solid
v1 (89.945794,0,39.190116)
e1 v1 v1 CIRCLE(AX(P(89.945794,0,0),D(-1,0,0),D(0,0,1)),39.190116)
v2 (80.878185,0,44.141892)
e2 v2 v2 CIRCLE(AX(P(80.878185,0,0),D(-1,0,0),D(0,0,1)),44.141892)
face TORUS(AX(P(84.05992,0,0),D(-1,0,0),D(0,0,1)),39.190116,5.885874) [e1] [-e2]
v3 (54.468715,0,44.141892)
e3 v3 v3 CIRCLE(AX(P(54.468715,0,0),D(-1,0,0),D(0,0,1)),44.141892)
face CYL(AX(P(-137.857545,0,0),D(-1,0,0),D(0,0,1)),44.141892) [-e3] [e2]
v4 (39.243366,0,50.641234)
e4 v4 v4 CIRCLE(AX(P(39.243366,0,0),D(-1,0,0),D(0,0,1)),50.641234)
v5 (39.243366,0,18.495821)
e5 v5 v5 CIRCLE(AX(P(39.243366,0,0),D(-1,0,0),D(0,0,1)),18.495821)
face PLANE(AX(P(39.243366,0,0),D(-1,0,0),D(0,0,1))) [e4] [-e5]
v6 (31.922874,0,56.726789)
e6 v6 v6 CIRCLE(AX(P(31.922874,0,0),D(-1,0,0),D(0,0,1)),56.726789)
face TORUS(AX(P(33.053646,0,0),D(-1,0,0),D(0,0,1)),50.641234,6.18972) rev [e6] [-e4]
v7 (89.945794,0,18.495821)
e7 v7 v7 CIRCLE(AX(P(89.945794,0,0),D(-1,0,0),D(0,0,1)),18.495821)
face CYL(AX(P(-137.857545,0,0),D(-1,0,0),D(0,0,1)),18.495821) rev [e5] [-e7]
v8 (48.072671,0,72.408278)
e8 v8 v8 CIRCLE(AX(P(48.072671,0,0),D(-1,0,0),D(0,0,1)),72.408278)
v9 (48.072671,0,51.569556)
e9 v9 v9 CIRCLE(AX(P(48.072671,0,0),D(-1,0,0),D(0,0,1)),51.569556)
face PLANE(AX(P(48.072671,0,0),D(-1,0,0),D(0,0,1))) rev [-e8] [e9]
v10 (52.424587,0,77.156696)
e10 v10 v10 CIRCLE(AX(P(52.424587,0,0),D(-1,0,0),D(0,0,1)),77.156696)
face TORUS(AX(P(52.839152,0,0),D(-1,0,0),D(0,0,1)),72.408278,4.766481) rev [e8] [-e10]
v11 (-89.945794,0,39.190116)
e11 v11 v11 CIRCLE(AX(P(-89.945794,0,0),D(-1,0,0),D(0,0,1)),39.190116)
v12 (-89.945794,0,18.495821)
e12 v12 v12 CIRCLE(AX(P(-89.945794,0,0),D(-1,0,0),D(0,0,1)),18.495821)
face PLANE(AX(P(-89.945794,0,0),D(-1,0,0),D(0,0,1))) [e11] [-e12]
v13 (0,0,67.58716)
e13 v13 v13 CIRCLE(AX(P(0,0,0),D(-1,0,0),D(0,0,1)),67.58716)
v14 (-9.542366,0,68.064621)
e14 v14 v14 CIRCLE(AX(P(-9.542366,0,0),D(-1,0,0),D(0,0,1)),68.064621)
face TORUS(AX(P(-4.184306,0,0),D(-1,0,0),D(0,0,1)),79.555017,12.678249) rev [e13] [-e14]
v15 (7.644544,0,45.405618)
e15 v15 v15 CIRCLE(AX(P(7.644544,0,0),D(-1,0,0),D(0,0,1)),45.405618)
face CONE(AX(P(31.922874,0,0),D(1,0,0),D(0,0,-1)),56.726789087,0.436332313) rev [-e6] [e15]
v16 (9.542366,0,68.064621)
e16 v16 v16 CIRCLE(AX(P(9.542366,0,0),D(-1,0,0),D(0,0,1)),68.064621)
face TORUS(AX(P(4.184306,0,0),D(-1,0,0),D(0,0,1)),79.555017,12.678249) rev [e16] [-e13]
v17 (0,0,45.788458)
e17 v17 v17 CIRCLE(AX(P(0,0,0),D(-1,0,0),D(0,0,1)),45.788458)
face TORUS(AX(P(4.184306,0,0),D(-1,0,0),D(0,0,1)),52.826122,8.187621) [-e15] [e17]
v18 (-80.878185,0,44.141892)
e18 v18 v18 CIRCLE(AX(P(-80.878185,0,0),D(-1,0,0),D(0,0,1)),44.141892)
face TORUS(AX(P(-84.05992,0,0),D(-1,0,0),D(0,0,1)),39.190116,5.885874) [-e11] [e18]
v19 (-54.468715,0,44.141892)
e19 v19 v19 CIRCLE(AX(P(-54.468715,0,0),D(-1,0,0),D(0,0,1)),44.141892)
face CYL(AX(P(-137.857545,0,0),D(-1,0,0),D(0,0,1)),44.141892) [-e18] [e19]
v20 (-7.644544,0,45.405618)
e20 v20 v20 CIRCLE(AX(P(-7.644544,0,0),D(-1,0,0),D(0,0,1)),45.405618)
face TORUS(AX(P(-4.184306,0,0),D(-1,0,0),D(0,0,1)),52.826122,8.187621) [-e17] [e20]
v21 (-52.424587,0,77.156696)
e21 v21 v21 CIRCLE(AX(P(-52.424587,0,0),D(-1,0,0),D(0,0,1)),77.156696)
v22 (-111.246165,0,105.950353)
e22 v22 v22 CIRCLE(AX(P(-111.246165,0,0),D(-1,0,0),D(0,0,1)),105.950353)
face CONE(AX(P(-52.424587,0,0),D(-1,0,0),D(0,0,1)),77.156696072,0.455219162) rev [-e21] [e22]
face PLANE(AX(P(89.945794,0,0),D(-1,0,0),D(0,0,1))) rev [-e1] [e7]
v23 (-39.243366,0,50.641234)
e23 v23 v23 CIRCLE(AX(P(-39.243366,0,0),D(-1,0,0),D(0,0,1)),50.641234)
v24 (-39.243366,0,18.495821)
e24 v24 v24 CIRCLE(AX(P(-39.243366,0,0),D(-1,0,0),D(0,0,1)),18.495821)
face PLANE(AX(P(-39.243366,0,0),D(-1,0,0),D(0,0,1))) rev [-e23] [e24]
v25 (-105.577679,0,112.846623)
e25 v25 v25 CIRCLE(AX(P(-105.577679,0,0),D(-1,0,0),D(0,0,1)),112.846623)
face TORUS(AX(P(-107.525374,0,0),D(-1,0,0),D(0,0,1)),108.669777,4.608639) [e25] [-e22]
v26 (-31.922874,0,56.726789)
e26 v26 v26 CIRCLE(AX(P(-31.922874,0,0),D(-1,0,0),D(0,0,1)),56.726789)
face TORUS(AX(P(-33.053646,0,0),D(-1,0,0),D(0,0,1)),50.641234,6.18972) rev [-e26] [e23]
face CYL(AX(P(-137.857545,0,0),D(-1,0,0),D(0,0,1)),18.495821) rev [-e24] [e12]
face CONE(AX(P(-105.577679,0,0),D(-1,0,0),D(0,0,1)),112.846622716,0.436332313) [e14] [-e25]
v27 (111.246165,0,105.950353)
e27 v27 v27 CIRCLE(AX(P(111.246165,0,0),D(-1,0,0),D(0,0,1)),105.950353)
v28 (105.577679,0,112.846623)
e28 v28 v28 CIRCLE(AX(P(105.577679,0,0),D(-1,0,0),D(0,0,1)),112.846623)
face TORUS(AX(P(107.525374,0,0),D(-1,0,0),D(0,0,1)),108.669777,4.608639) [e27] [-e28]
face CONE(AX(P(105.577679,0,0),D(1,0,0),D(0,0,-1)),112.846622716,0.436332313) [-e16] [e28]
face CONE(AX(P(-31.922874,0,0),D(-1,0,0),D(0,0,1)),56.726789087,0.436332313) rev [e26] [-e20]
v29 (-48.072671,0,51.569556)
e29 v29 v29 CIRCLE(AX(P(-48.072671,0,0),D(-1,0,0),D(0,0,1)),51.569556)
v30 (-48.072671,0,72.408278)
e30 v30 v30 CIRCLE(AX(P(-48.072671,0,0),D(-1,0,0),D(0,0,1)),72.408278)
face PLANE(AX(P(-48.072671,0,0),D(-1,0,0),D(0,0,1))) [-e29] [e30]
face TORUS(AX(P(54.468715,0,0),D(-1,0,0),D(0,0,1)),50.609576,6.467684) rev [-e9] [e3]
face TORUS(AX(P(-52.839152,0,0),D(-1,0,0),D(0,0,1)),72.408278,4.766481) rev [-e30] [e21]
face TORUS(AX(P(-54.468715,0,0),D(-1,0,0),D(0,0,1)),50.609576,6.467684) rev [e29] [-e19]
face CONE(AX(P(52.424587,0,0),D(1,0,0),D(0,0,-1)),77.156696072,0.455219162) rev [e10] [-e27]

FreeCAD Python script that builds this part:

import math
import FreeCAD as App
import Part
import Sketcher

V = App.Vector
Q = App.Units.Quantity

doc = App.newDocument("Part")
body = doc.addObject("PartDesign::Body", "Body")

# Sketch on XZ plane
sketch1 = body.newObject("Sketcher::SketchObject", "Sketch")
sketch1.AttachmentSupport = (doc.getObject("XZ_Plane"), [""])
sketch1.MapMode = "FlatFace"
sketch1.addGeometry(Part.LineSegment(V(-89.945794, -18.495821, 0), V(-39.243366, -18.495821, 0)), False)
sketch1.addGeometry(Part.LineSegment(V(-39.243366, -18.495821, 0), V(-39.243366, -50.641234, 0)), False)
sketch1.addGeometry(Part.ArcOfCircle(Part.Circle(V(-33.053646, -50.641234, 0), V(0, 0, 1), 6.18972), math.radians(180), math.radians(280.526226)), False)
sketch1.addGeometry(Part.LineSegment(V(-31.922874, -56.726789, 0), V(-7.644544, -45.405618, 0)), False)
sketch1.addGeometry(Part.ArcOfCircle(Part.Circle(V(-4.184306, -52.826122, 0), V(0, 0, 1), 8.187621), math.radians(59.266022), math.radians(115)), False)
sketch1.addGeometry(Part.ArcOfCircle(Part.Circle(V(4.184306, -52.826122, 0), V(0, 0, 1), 8.187621), math.radians(65), math.radians(120.733978)), False)
sketch1.addGeometry(Part.LineSegment(V(7.644544, -45.405618, 0), V(31.922874, -56.726789, 0)), False)
sketch1.addGeometry(Part.ArcOfCircle(Part.Circle(V(33.053646, -50.641234, 0), V(0, 0, 1), 6.18972), math.radians(-100.526226), math.radians(0)), False)
sketch1.addGeometry(Part.LineSegment(V(39.243366, -50.641234, 0), V(39.243366, -18.495821, 0)), False)
sketch1.addGeometry(Part.LineSegment(V(39.243366, -18.495821, 0), V(89.945794, -18.495821, 0)), False)
sketch1.addGeometry(Part.LineSegment(V(89.945794, -18.495821, 0), V(89.945794, -39.190116, 0)), False)
sketch1.addGeometry(Part.ArcOfCircle(Part.Circle(V(84.05992, -39.190116, 0), V(0, 0, 1), 5.885874), math.radians(-122.722538), math.radians(0)), False)
sketch1.addGeometry(Part.LineSegment(V(80.878185, -44.141892, 0), V(54.468715, -44.141892, 0)), False)
sketch1.addGeometry(Part.ArcOfCircle(Part.Circle(V(54.468715, -50.609576, 0), V(0, 0, 1), 6.467684), math.radians(90), math.radians(188.535787)), False)
sketch1.addGeometry(Part.LineSegment(V(48.072671, -51.569556, 0), V(48.072671, -72.408278, 0)), False)
sketch1.addGeometry(Part.ArcOfCircle(Part.Circle(V(52.839152, -72.408278, 0), V(0, 0, 1), 4.766481), math.radians(-180), math.radians(-94.989617)), False)
sketch1.addGeometry(Part.LineSegment(V(52.424587, -77.156696, 0), V(111.246165, -105.950353, 0)), False)
sketch1.addGeometry(Part.ArcOfCircle(Part.Circle(V(107.525374, -108.669777, 0), V(0, 0, 1), 4.608639), math.radians(-115), math.radians(36.16205)), False)
sketch1.addGeometry(Part.LineSegment(V(105.577679, -112.846623, 0), V(9.542366, -68.064621, 0)), False)
sketch1.addGeometry(Part.ArcOfCircle(Part.Circle(V(4.184306, -79.555017, 0), V(0, 0, 1), 12.678249), math.radians(65), math.radians(109.271092)), False)
sketch1.addGeometry(Part.ArcOfCircle(Part.Circle(V(-4.184306, -79.555017, 0), V(0, 0, 1), 12.678249), math.radians(70.728908), math.radians(115)), False)
sketch1.addGeometry(Part.LineSegment(V(-9.542366, -68.064621, 0), V(-105.577679, -112.846623, 0)), False)
sketch1.addGeometry(Part.ArcOfCircle(Part.Circle(V(-107.525374, -108.669777, 0), V(0, 0, 1), 4.608639), math.radians(143.83795), math.radians(295)), False)
sketch1.addGeometry(Part.LineSegment(V(-111.246165, -105.950353, 0), V(-52.424587, -77.156696, 0)), False)
sketch1.addGeometry(Part.ArcOfCircle(Part.Circle(V(-52.839152, -72.408278, 0), V(0, 0, 1), 4.766481), math.radians(-85.010383), math.radians(0)), False)
sketch1.addGeometry(Part.LineSegment(V(-48.072671, -72.408278, 0), V(-48.072671, -51.569556, 0)), False)
sketch1.addGeometry(Part.ArcOfCircle(Part.Circle(V(-54.468715, -50.609576, 0), V(0, 0, 1), 6.467684), math.radians(-8.535787), math.radians(90)), False)
sketch1.addGeometry(Part.LineSegment(V(-54.468715, -44.141892, 0), V(-80.878185, -44.141892, 0)), False)
sketch1.addGeometry(Part.ArcOfCircle(Part.Circle(V(-84.05992, -39.190116, 0), V(0, 0, 1), 5.885874), math.radians(-180), math.radians(-57.277462)), False)
sketch1.addGeometry(Part.LineSegment(V(-89.945794, -39.190116, 0), V(-89.945794, -18.495821, 0)), False)
sketch1.addConstraint(Sketcher.Constraint("Coincident", 0, 2, 1, 1))
sketch1.addConstraint(Sketcher.Constraint("Tangent", 1, 2, 2, 1))
sketch1.addConstraint(Sketcher.Constraint("Coincident", 2, 2, 3, 1))
sketch1.addConstraint(Sketcher.Constraint("Tangent", 3, 2, 4, 2))
sketch1.addConstraint(Sketcher.Constraint("Coincident", 4, 1, 5, 2))
sketch1.addConstraint(Sketcher.Constraint("Tangent", 5, 1, 6, 1))
sketch1.addConstraint(Sketcher.Constraint("Coincident", 6, 2, 7, 1))
sketch1.addConstraint(Sketcher.Constraint("Tangent", 7, 2, 8, 1))
sketch1.addConstraint(Sketcher.Constraint("Coincident", 8, 2, 9, 1))
sketch1.addConstraint(Sketcher.Constraint("Coincident", 9, 2, 10, 1))
sketch1.addConstraint(Sketcher.Constraint("Tangent", 10, 2, 11, 2))
sketch1.addConstraint(Sketcher.Constraint("Coincident", 11, 1, 12, 1))
sketch1.addConstraint(Sketcher.Constraint("Tangent", 12, 2, 13, 1))
sketch1.addConstraint(Sketcher.Constraint("Coincident", 13, 2, 14, 1))
sketch1.addConstraint(Sketcher.Constraint("Tangent", 14, 2, 15, 1))
sketch1.addConstraint(Sketcher.Constraint("Coincident", 15, 2, 16, 1))
sketch1.addConstraint(Sketcher.Constraint("Coincident", 16, 2, 17, 2))
sketch1.addConstraint(Sketcher.Constraint("Tangent", 17, 1, 18, 1))
sketch1.addConstraint(Sketcher.Constraint("Tangent", 18, 2, 19, 1))
sketch1.addConstraint(Sketcher.Constraint("Coincident", 19, 2, 20, 1))
sketch1.addConstraint(Sketcher.Constraint("Tangent", 20, 2, 21, 1))
sketch1.addConstraint(Sketcher.Constraint("Tangent", 21, 2, 22, 2))
sketch1.addConstraint(Sketcher.Constraint("Coincident", 22, 1, 23, 1))
sketch1.addConstraint(Sketcher.Constraint("Coincident", 23, 2, 24, 1))
sketch1.addConstraint(Sketcher.Constraint("Tangent", 24, 2, 25, 1))
sketch1.addConstraint(Sketcher.Constraint("Coincident", 25, 2, 26, 1))
sketch1.addConstraint(Sketcher.Constraint("Tangent", 26, 2, 27, 1))
sketch1.addConstraint(Sketcher.Constraint("Coincident", 27, 2, 28, 2))
sketch1.addConstraint(Sketcher.Constraint("Tangent", 28, 1, 29, 1))
sketch1.addConstraint(Sketcher.Constraint("Coincident", 29, 2, 0, 1))
sketch1.addConstraint(Sketcher.Constraint("Horizontal", 0))
sketch1.addConstraint(Sketcher.Constraint("Vertical", 1))
sketch1.addConstraint(Sketcher.Constraint("Vertical", 8))
sketch1.addConstraint(Sketcher.Constraint("Horizontal", 9))
sketch1.addConstraint(Sketcher.Constraint("Vertical", 10))
sketch1.addConstraint(Sketcher.Constraint("Horizontal", 12))
sketch1.addConstraint(Sketcher.Constraint("Vertical", 14))
sketch1.addConstraint(Sketcher.Constraint("Vertical", 25))
sketch1.addConstraint(Sketcher.Constraint("Horizontal", 27))
sketch1.addConstraint(Sketcher.Constraint("Vertical", 29))
sketch1.addConstraint(Sketcher.Constraint("Equal", 4, 5))
sketch1.addConstraint(Sketcher.Constraint("Equal", 2, 7))
sketch1.addConstraint(Sketcher.Constraint("Equal", 19, 20))
sketch1.addConstraint(Sketcher.Constraint("Equal", 17, 22))
sketch1.addConstraint(Sketcher.Constraint("Equal", 15, 24))
sketch1.addConstraint(Sketcher.Constraint("Equal", 13, 26))
sketch1.addConstraint(Sketcher.Constraint("Equal", 11, 28))
sketch1.addConstraint(Sketcher.Constraint("Symmetric", 4, 3, 5, 3, -2))
sketch1.addConstraint(Sketcher.Constraint("Symmetric", 2, 3, 7, 3, -2))
sketch1.addConstraint(Sketcher.Constraint("Symmetric", 19, 3, 20, 3, -2))
sketch1.addConstraint(Sketcher.Constraint("Symmetric", 17, 3, 22, 3, -2))
sketch1.addConstraint(Sketcher.Constraint("Symmetric", 15, 3, 24, 3, -2))
sketch1.addConstraint(Sketcher.Constraint("Symmetric", 13, 3, 26, 3, -2))
sketch1.addConstraint(Sketcher.Constraint("Symmetric", 11, 3, 28, 3, -2))
sketch1.addConstraint(Sketcher.Constraint("Parallel", 6, 18))
sketch1.addConstraint(Sketcher.Constraint("Parallel", 3, 21))
sketch1.addConstraint(Sketcher.Constraint("Horizontal", 0, 2, 8, 2))
sketch1.addConstraint(Sketcher.Constraint("Horizontal", 16, 2, 22, 1))
sketch1.addConstraint(Sketcher.Constraint("Horizontal", 15, 2, 23, 2))
sketch1.addConstraint(Sketcher.Constraint("Vertical", 5, 3, 19, 3))
sketch1.addConstraint(Sketcher.Constraint("Angle", 3, Q("25 deg")))
sketch1.addConstraint(Sketcher.Constraint("Radius", 2, 6.18972))
sketch1.addConstraint(Sketcher.Constraint("Radius", 4, 8.187621))
sketch1.addConstraint(Sketcher.Constraint("Radius", 15, 4.766481))
sketch1.addConstraint(Sketcher.Constraint("Radius", 17, 4.608639))
sketch1.addConstraint(Sketcher.Constraint("Radius", 19, 12.678249))
sketch1.addConstraint(Sketcher.Constraint("Radius", 11, 5.885874))
sketch1.addConstraint(Sketcher.Constraint("Radius", 13, 6.467684))
sketch1.addConstraint(Sketcher.Constraint("DistanceX", 0, 1, 0, 2, 50.702428))
sketch1.addConstraint(Sketcher.Constraint("DistanceX", 12, 2, 12, 1, 26.40947))
sketch1.addConstraint(Sketcher.Constraint("DistanceY", 17, 3, 15, 3, 36.261499))
sketch1.addConstraint(Sketcher.Constraint("DistanceY", 17, 3, 13, 3, 58.060202))
sketch1.addConstraint(Sketcher.Constraint("DistanceY", 4, 3, 0, 2, 34.330302))
sketch1.addConstraint(Sketcher.Constraint("DistanceY", 18, 2, 5, 3, 15.238498))
sketch1.addConstraint(Sketcher.Constraint("Distance", 16, 65.49086))
sketch1.addConstraint(Sketcher.Constraint("DistanceY", 1, 2, 1, 1, 32.145413))
sketch1.addConstraint(Sketcher.Constraint("DistanceY", 10, 2, 10, 1, 20.694296))
sketch1.addConstraint(Sketcher.Constraint("DistanceY", 14, 2, 14, 1, 20.838722))
sketch1.addConstraint(Sketcher.Constraint("DistanceX", -1, 1, 11, 3, 84.05992))
sketch1.addConstraint(Sketcher.Constraint("DistanceY", 0, 2, -1, 1, 18.495821))
sketch1.addConstraint(Sketcher.Constraint("DistanceY", 2, 2, -1, 1, 56.726789))
sketch1.addConstraint(Sketcher.Constraint("DistanceX", -1, 1, 13, 2, 48.072671))
sketch1.addConstraint(Sketcher.Constraint("DistanceY", 15, 2, 15, 3, 4.748418))
revolution = body.newObject("PartDesign::Revolution", "Revolution")
revolution.Profile = sketch1
revolution.ReferenceAxis = (sketch1, ["H_Axis"])
revolution.Angle = 360

doc.recompute()
